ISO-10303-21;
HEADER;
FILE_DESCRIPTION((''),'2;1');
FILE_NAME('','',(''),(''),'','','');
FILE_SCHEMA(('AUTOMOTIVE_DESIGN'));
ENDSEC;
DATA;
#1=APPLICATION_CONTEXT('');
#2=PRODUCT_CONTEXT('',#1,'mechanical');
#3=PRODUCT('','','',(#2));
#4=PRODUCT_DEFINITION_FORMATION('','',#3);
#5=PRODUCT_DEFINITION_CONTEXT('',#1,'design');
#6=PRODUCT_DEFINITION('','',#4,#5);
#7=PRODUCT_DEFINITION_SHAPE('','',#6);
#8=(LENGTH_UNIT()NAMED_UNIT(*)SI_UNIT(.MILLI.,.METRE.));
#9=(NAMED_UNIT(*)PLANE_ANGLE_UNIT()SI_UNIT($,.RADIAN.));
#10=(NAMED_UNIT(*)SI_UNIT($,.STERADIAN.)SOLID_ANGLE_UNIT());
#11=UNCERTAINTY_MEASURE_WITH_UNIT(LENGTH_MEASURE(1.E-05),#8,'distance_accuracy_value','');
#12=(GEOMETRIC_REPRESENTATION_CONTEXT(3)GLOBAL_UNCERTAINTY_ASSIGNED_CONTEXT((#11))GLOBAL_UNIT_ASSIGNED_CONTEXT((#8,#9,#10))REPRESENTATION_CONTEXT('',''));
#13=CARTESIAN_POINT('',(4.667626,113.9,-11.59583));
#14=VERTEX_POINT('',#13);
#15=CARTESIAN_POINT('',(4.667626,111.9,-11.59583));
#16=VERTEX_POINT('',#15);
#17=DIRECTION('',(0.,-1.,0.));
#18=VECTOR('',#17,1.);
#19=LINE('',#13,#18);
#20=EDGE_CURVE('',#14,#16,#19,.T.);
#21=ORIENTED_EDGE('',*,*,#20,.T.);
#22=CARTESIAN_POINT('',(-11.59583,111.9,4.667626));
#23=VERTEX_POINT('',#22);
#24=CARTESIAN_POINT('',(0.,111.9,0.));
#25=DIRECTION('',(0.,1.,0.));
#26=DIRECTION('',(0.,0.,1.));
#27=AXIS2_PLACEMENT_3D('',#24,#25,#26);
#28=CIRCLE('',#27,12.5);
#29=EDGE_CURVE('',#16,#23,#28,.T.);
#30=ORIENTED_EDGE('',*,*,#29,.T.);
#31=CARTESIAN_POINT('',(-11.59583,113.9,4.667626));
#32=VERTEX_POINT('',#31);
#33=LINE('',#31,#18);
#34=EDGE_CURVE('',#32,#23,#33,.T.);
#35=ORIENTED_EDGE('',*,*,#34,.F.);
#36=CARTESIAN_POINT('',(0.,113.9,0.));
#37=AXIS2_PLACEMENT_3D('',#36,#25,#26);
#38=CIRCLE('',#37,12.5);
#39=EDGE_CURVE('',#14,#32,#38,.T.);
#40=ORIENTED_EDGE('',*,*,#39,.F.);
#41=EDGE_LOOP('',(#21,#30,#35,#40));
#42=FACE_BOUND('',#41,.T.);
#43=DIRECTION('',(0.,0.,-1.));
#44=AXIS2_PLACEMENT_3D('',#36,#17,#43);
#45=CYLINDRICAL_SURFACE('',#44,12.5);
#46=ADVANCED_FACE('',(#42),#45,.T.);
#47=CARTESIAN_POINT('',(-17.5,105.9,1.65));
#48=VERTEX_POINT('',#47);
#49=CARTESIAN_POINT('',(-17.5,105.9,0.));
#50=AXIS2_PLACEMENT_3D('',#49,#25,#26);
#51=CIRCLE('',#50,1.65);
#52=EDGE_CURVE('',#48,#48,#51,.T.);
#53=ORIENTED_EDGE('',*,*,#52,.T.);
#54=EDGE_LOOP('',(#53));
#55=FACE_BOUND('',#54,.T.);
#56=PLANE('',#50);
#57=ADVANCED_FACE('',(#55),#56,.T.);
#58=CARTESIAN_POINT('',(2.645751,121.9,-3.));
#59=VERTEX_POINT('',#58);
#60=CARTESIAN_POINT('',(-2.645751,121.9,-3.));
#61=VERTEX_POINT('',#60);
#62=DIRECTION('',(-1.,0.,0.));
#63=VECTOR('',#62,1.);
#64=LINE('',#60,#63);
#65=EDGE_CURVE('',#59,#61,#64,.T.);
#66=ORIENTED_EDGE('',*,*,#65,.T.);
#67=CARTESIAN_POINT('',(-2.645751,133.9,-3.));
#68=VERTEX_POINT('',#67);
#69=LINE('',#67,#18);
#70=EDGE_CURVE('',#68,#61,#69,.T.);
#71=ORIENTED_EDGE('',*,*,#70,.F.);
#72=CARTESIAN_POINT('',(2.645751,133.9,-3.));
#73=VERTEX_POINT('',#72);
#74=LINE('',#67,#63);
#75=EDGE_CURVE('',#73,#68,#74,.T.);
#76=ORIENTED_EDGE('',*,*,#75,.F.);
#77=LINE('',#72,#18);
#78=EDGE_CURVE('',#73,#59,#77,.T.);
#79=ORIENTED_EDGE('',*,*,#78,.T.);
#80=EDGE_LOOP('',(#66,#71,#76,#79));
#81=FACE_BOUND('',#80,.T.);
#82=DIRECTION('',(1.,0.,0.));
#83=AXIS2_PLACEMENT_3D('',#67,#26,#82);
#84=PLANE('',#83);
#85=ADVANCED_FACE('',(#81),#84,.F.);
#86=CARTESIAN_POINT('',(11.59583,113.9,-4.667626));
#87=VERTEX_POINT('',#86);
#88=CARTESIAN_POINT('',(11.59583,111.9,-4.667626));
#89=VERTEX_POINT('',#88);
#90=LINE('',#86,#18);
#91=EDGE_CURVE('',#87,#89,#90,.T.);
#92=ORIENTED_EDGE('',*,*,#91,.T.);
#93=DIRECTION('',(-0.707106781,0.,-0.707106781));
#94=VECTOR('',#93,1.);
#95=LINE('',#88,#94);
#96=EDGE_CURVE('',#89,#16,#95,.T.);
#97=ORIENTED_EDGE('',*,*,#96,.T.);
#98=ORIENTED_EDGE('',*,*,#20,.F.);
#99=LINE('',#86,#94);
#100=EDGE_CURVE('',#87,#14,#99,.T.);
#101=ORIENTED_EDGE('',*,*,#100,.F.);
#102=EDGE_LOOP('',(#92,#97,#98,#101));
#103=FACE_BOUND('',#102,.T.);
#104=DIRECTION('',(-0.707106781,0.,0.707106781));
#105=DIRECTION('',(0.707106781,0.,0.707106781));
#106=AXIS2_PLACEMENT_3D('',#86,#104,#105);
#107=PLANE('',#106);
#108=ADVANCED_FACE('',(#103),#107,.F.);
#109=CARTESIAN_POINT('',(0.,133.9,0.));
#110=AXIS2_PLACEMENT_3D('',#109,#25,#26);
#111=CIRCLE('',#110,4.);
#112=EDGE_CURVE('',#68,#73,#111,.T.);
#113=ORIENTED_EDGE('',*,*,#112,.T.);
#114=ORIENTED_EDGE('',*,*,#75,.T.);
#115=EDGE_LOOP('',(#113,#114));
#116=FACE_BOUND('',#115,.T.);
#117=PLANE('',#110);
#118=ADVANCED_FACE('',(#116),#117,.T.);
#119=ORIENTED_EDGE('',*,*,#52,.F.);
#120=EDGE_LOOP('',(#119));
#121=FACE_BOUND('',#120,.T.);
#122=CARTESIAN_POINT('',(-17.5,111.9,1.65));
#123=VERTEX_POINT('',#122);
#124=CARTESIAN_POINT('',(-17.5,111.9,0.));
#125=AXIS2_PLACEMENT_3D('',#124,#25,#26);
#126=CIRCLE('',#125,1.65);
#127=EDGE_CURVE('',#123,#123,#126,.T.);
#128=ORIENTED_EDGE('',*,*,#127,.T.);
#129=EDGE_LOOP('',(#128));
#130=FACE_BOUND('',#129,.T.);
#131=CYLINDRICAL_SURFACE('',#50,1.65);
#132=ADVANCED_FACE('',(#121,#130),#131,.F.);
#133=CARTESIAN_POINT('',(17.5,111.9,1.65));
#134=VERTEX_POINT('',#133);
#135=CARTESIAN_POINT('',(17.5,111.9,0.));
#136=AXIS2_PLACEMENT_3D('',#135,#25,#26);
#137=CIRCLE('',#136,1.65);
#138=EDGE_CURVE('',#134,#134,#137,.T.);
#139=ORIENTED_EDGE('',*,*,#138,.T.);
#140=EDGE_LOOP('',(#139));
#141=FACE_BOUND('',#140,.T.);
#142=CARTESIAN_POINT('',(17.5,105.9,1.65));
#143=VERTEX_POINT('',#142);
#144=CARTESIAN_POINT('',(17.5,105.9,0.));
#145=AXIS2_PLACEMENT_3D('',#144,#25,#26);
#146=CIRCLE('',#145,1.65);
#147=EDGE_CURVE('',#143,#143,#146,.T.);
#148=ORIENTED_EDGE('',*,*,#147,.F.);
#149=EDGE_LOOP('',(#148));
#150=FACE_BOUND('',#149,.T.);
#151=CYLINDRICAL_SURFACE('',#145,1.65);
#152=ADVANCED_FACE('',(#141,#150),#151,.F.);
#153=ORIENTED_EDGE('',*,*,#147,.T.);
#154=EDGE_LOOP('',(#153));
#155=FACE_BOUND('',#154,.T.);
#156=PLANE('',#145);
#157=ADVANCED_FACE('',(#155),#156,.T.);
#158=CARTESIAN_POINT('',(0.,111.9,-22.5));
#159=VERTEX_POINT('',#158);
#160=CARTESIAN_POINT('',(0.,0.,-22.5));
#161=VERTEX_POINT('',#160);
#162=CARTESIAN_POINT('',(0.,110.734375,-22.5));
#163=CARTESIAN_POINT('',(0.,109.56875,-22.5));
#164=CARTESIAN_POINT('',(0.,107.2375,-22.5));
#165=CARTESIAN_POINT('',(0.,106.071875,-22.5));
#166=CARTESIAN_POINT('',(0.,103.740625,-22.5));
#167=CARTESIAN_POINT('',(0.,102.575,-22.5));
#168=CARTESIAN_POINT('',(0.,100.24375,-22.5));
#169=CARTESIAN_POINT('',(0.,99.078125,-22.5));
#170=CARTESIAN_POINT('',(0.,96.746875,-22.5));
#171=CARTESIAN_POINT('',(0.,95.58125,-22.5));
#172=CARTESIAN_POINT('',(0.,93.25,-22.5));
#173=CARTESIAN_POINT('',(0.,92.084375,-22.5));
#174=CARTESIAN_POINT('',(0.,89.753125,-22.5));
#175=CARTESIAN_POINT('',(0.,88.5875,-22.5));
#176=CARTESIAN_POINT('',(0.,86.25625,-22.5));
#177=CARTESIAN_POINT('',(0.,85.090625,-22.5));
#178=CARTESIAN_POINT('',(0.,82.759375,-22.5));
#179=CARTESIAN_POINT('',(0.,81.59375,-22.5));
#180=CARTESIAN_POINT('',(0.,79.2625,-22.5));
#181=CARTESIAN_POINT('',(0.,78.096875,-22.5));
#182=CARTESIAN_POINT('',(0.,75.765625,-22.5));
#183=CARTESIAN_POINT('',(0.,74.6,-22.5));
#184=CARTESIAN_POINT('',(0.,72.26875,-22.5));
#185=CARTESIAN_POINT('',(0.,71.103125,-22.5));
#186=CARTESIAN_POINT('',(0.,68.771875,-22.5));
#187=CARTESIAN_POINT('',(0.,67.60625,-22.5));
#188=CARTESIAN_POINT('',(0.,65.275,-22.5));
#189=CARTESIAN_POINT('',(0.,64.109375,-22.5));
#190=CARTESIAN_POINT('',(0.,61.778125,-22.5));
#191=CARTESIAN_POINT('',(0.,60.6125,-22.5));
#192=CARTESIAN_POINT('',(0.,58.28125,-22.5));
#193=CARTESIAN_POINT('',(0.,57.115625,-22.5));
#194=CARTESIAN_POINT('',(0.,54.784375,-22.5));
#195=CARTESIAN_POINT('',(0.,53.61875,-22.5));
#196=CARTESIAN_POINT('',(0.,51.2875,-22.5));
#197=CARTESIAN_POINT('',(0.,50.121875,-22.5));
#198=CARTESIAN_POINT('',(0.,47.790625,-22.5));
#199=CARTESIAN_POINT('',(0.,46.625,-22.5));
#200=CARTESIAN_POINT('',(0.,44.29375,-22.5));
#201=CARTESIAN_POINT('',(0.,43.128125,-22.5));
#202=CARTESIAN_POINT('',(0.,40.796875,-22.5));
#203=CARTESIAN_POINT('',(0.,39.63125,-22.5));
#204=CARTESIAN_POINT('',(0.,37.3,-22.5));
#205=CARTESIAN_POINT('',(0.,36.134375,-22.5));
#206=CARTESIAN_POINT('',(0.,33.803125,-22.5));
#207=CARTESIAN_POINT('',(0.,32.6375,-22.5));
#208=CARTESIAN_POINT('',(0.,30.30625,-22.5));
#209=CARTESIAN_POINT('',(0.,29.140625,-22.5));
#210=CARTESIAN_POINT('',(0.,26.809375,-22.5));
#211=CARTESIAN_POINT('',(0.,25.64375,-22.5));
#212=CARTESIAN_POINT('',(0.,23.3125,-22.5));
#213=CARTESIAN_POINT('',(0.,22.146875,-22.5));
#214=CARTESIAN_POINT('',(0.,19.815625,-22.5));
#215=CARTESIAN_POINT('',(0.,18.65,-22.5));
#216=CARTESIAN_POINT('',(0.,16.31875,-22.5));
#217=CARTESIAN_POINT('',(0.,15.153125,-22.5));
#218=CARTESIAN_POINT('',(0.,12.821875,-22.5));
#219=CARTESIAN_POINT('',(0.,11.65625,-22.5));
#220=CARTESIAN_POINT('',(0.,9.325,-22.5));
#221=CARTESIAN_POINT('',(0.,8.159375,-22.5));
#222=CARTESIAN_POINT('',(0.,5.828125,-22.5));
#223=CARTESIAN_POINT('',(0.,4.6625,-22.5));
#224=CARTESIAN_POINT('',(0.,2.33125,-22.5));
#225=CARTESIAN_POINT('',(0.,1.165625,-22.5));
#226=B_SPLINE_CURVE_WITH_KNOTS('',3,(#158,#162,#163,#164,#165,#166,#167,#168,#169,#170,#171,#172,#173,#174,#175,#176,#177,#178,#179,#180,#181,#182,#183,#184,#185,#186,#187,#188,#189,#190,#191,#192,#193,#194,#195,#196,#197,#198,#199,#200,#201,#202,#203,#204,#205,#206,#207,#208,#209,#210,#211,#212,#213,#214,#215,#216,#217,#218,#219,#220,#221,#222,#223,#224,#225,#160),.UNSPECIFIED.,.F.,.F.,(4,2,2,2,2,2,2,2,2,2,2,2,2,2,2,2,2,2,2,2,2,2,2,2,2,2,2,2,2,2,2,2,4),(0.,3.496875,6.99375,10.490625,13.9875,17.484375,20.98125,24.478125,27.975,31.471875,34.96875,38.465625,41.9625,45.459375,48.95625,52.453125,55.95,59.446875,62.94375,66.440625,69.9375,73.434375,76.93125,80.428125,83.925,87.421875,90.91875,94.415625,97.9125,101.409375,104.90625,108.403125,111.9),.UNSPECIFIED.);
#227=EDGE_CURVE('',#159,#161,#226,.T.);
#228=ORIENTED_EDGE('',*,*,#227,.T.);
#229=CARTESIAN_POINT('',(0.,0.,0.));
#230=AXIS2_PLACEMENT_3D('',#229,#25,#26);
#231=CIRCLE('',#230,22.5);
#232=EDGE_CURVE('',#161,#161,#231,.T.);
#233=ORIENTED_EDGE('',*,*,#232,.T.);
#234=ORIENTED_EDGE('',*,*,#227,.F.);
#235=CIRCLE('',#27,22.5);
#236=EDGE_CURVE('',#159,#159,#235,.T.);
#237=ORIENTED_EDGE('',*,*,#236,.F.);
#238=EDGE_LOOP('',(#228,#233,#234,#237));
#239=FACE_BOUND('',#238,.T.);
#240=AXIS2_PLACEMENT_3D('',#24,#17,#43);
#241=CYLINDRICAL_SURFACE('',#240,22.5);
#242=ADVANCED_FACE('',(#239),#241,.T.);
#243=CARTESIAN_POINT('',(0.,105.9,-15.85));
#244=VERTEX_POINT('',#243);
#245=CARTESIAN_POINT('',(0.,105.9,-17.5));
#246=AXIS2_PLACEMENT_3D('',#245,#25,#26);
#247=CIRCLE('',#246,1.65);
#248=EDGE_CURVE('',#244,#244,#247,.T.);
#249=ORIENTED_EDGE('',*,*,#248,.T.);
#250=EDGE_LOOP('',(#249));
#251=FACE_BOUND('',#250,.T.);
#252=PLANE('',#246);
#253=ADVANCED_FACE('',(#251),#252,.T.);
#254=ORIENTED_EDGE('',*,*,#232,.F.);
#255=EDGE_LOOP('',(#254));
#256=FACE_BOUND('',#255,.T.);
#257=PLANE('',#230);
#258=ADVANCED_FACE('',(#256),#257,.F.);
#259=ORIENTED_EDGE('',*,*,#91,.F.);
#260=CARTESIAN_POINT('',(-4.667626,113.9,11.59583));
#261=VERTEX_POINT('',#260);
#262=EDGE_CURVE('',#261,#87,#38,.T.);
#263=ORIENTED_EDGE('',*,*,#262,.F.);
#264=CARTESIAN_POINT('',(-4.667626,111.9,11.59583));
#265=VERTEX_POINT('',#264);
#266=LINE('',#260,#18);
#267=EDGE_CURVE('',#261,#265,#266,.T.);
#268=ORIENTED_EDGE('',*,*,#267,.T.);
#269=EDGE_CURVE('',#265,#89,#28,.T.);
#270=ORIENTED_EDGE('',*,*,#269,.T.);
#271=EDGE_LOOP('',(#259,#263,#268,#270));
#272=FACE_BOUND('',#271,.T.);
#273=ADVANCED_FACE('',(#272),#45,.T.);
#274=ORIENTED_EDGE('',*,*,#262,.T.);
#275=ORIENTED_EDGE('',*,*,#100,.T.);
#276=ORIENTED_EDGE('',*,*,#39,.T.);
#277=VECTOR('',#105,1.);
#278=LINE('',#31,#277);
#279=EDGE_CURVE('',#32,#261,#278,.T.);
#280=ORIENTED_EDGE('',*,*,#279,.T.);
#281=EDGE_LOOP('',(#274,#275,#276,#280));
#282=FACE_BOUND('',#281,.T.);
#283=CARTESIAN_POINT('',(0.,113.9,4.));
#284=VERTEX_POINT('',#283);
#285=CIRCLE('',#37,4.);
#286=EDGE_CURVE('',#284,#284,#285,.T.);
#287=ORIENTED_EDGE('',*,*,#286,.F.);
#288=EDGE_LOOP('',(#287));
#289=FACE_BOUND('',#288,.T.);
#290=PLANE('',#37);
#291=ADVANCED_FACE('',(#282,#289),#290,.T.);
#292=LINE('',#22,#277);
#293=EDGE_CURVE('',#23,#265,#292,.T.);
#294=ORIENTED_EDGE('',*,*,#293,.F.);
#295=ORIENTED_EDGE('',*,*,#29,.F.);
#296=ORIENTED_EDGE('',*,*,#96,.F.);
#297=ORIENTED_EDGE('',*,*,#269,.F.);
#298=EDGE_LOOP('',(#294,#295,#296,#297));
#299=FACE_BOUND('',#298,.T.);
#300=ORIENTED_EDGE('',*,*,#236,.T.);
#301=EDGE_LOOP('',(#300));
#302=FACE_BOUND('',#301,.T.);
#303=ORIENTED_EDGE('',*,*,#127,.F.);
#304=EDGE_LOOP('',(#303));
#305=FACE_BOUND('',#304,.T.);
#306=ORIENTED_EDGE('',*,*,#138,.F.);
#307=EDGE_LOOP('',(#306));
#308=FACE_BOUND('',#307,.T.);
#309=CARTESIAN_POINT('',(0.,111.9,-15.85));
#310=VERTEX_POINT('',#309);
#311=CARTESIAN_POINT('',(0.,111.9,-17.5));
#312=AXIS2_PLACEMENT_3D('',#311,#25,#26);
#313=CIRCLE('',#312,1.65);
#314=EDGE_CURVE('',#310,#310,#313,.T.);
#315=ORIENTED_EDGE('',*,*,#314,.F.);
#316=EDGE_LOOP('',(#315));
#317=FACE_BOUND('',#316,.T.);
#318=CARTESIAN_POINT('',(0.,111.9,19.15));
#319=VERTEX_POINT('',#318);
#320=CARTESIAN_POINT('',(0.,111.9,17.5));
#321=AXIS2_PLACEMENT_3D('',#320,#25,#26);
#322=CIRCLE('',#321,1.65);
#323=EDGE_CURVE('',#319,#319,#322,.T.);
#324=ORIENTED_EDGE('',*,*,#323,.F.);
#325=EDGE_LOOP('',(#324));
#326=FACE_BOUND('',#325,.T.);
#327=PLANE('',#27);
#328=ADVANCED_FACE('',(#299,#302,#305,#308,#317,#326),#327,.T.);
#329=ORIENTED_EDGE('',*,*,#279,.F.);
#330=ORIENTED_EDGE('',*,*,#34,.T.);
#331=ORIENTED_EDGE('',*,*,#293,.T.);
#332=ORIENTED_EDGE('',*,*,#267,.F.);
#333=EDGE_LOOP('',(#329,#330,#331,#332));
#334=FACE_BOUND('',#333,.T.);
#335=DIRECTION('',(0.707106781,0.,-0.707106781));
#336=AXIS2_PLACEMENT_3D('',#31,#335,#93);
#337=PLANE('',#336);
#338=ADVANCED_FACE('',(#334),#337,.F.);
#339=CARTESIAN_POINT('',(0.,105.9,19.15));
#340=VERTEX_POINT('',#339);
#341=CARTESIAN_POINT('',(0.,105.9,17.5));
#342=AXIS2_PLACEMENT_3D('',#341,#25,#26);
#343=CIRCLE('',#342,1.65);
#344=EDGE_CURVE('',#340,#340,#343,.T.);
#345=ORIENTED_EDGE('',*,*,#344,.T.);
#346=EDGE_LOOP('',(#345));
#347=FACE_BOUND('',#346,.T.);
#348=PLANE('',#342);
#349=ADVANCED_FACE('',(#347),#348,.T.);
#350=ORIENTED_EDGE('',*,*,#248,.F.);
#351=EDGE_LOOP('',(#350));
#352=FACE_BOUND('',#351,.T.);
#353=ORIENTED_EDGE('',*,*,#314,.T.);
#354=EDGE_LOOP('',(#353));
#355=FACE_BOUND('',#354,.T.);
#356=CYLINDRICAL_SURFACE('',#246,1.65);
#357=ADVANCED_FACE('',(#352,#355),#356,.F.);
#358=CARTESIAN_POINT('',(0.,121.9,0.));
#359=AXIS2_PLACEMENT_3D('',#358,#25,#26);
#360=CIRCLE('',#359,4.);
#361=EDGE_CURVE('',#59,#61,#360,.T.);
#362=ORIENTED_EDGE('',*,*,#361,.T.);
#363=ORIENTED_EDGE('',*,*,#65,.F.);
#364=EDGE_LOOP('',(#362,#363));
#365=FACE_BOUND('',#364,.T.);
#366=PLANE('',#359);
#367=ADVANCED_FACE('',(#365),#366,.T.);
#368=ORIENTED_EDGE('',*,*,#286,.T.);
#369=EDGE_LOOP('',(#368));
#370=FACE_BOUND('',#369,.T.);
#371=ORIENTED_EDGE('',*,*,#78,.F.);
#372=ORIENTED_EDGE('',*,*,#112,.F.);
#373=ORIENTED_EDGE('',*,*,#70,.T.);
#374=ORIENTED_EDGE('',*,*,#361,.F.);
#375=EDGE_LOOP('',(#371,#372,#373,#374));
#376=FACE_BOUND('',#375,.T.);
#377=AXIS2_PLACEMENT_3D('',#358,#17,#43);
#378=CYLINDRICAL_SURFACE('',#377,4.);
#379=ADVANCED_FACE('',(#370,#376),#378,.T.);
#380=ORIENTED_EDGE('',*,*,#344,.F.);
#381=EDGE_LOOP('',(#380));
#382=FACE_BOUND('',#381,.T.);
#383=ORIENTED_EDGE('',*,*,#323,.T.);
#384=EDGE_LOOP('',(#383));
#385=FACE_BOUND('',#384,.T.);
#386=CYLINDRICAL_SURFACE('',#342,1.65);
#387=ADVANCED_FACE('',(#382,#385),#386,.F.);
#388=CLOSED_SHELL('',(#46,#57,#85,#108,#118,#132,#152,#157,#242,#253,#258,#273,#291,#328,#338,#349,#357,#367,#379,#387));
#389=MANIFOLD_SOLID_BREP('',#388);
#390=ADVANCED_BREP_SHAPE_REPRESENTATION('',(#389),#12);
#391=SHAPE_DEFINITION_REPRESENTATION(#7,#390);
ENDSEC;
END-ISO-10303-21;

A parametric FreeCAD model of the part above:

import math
import FreeCAD as App
import Part
import Sketcher

V = App.Vector
Q = App.Units.Quantity

doc = App.newDocument("Part")
body = doc.addObject("PartDesign::Body", "Body")

sketch1 = body.newObject("Sketcher::SketchObject", "Sketch")
sketch1.AttachmentSupport = (doc.getObject("XZ_Plane"), [""])
sketch1.MapMode = "FlatFace"
sketch1.addGeometry(Part.Circle(V(0, 0, 0), V(0, 0, 1), 22), False)
sketch1.addConstraint(Sketcher.Constraint("Coincident", 0, 3, -1, 1))
sketch1.addConstraint(Sketcher.Constraint("Diameter", 0, 45.0))
pad1 = body.newObject("PartDesign::Pad", "Pad")
pad1.Profile = sketch1
pad1.Length = 111.9
pad1.Reversed = True

sketch2 = body.newObject("Sketcher::SketchObject", "Sketch001")
sketch2.AttachmentSupport = (doc.getObject("XZ_Plane"), [""])
sketch2.MapMode = "FlatFace"
sketch2.AttachmentOffset = App.Placement(V(0, 0, -111.9), App.Rotation())
sketch2.addGeometry(Part.LineSegment(V(-12, 5, 0), V(-5, 12, 0)), False)
sketch2.addGeometry(Part.ArcOfCircle(Part.Circle(V(0, 0, 0), V(0, 0, 1), 13), math.radians(-22), math.radians(112)), False)
sketch2.addGeometry(Part.LineSegment(V(12, -5, 0), V(5, -12, 0)), False)
sketch2.addGeometry(Part.ArcOfCircle(Part.Circle(V(0, 0, 0), V(0, 0, 1), 13), math.radians(158), math.radians(292)), False)
sketch2.addConstraint(Sketcher.Constraint("Coincident", 0, 2, 1, 2))
sketch2.addConstraint(Sketcher.Constraint("Coincident", 1, 1, 2, 1))
sketch2.addConstraint(Sketcher.Constraint("Coincident", 2, 2, 3, 2))
sketch2.addConstraint(Sketcher.Constraint("Coincident", 3, 1, 0, 1))
sketch2.addConstraint(Sketcher.Constraint("Coincident", 1, 3, -1, 1))
sketch2.addConstraint(Sketcher.Constraint("Coincident", 3, 3, -1, 1))
sketch2.addConstraint(Sketcher.Constraint("Equal", 1, 3))
sketch2.addConstraint(Sketcher.Constraint("Parallel", 0, 2))
sketch2.addConstraint(Sketcher.Constraint("Equal", 0, 2))
sketch2.addConstraint(Sketcher.Constraint("Radius", 1, 12.5))
sketch2.addConstraint(Sketcher.Constraint("Angle", 0, Q("45 deg")))
sketch2.addConstraint(Sketcher.Constraint("Distance", 0, 9.79796))
pad2 = body.newObject("PartDesign::Pad", "Pad001")
pad2.Profile = sketch2
pad2.Length = 2
pad2.Reversed = True

sketch3 = body.newObject("Sketcher::SketchObject", "Sketch002")
sketch3.AttachmentSupport = (doc.getObject("XZ_Plane"), [""])
sketch3.MapMode = "FlatFace"
sketch3.AttachmentOffset = App.Placement(V(0, 0, -113.9), App.Rotation())
sketch3.addGeometry(Part.Circle(V(0, 0, 0), V(0, 0, 1), 4), False)
sketch3.addConstraint(Sketcher.Constraint("Coincident", 0, 3, -1, 1))
sketch3.addConstraint(Sketcher.Constraint("Diameter", 0, 8.0))
pad3 = body.newObject("PartDesign::Pad", "Pad002")
pad3.Profile = sketch3
pad3.Length = 8
pad3.Reversed = True

sketch4 = body.newObject("Sketcher::SketchObject", "Sketch003")
sketch4.AttachmentSupport = (doc.getObject("XZ_Plane"), [""])
sketch4.MapMode = "FlatFace"
sketch4.AttachmentOffset = App.Placement(V(0, 0, -121.9), App.Rotation())
sketch4.addGeometry(Part.LineSegment(V(2.6, -3, 0), V(-2.6, -3, 0)), False)
sketch4.addGeometry(Part.ArcOfCircle(Part.Circle(V(0, 0, 0), V(0, 0, 1), 4), math.radians(-49), math.radians(229)), False)
sketch4.addConstraint(Sketcher.Constraint("Coincident", 0, 1, 1, 1))
sketch4.addConstraint(Sketcher.Constraint("Coincident", 1, 2, 0, 2))
sketch4.addConstraint(Sketcher.Constraint("Horizontal", 0))
sketch4.addConstraint(Sketcher.Constraint("Coincident", 1, 3, -1, 1))
sketch4.addConstraint(Sketcher.Constraint("Radius", 1, 4.0))
sketch4.addConstraint(Sketcher.Constraint("DistanceY", 0, 1, -1, 1, 3.0))
pad4 = body.newObject("PartDesign::Pad", "Pad003")
pad4.Profile = sketch4
pad4.Length = 12
pad4.Reversed = True

sketch5 = body.newObject("Sketcher::SketchObject", "Sketch004")
sketch5.AttachmentSupport = (doc.getObject("XZ_Plane"), [""])
sketch5.MapMode = "FlatFace"
sketch5.AttachmentOffset = App.Placement(V(0, 0, -111.9), App.Rotation())
sketch5.addGeometry(Part.Circle(V(-17.5, 0, 0), V(0, 0, 1), 1.6), False)
sketch5.addGeometry(Part.Circle(V(0, -17.5, 0), V(0, 0, 1), 1.6), False)
sketch5.addGeometry(Part.Circle(V(17.5, 0, 0), V(0, 0, 1), 1.6), False)
sketch5.addGeometry(Part.Circle(V(0, 17.5, 0), V(0, 0, 1), 1.6), False)
sketch5.addConstraint(Sketcher.Constraint("Equal", 0, 1))
sketch5.addConstraint(Sketcher.Constraint("Equal", 1, 2))
sketch5.addConstraint(Sketcher.Constraint("Equal", 2, 3))
sketch5.addConstraint(Sketcher.Constraint("Symmetric", 0, 3, 2, 3, -1, 1))
sketch5.addConstraint(Sketcher.Constraint("Symmetric", 1, 3, 3, 3, -1, 1))
sketch5.addConstraint(Sketcher.Constraint("PointOnObject", 0, 3, -1))
sketch5.addConstraint(Sketcher.Constraint("PointOnObject", 1, 3, -2))
sketch5.addConstraint(Sketcher.Constraint("Diameter", 0, 3.3))
sketch5.addConstraint(Sketcher.Constraint("DistanceX", 0, 3, 2, 3, 35.0))
sketch5.addConstraint(Sketcher.Constraint("DistanceY", 1, 3, 3, 3, 35.0))
pocket1 = body.newObject("PartDesign::Pocket", "Pocket")
pocket1.Profile = sketch5
pocket1.Length = 6
pocket1.Reversed = True

doc.recompute()
